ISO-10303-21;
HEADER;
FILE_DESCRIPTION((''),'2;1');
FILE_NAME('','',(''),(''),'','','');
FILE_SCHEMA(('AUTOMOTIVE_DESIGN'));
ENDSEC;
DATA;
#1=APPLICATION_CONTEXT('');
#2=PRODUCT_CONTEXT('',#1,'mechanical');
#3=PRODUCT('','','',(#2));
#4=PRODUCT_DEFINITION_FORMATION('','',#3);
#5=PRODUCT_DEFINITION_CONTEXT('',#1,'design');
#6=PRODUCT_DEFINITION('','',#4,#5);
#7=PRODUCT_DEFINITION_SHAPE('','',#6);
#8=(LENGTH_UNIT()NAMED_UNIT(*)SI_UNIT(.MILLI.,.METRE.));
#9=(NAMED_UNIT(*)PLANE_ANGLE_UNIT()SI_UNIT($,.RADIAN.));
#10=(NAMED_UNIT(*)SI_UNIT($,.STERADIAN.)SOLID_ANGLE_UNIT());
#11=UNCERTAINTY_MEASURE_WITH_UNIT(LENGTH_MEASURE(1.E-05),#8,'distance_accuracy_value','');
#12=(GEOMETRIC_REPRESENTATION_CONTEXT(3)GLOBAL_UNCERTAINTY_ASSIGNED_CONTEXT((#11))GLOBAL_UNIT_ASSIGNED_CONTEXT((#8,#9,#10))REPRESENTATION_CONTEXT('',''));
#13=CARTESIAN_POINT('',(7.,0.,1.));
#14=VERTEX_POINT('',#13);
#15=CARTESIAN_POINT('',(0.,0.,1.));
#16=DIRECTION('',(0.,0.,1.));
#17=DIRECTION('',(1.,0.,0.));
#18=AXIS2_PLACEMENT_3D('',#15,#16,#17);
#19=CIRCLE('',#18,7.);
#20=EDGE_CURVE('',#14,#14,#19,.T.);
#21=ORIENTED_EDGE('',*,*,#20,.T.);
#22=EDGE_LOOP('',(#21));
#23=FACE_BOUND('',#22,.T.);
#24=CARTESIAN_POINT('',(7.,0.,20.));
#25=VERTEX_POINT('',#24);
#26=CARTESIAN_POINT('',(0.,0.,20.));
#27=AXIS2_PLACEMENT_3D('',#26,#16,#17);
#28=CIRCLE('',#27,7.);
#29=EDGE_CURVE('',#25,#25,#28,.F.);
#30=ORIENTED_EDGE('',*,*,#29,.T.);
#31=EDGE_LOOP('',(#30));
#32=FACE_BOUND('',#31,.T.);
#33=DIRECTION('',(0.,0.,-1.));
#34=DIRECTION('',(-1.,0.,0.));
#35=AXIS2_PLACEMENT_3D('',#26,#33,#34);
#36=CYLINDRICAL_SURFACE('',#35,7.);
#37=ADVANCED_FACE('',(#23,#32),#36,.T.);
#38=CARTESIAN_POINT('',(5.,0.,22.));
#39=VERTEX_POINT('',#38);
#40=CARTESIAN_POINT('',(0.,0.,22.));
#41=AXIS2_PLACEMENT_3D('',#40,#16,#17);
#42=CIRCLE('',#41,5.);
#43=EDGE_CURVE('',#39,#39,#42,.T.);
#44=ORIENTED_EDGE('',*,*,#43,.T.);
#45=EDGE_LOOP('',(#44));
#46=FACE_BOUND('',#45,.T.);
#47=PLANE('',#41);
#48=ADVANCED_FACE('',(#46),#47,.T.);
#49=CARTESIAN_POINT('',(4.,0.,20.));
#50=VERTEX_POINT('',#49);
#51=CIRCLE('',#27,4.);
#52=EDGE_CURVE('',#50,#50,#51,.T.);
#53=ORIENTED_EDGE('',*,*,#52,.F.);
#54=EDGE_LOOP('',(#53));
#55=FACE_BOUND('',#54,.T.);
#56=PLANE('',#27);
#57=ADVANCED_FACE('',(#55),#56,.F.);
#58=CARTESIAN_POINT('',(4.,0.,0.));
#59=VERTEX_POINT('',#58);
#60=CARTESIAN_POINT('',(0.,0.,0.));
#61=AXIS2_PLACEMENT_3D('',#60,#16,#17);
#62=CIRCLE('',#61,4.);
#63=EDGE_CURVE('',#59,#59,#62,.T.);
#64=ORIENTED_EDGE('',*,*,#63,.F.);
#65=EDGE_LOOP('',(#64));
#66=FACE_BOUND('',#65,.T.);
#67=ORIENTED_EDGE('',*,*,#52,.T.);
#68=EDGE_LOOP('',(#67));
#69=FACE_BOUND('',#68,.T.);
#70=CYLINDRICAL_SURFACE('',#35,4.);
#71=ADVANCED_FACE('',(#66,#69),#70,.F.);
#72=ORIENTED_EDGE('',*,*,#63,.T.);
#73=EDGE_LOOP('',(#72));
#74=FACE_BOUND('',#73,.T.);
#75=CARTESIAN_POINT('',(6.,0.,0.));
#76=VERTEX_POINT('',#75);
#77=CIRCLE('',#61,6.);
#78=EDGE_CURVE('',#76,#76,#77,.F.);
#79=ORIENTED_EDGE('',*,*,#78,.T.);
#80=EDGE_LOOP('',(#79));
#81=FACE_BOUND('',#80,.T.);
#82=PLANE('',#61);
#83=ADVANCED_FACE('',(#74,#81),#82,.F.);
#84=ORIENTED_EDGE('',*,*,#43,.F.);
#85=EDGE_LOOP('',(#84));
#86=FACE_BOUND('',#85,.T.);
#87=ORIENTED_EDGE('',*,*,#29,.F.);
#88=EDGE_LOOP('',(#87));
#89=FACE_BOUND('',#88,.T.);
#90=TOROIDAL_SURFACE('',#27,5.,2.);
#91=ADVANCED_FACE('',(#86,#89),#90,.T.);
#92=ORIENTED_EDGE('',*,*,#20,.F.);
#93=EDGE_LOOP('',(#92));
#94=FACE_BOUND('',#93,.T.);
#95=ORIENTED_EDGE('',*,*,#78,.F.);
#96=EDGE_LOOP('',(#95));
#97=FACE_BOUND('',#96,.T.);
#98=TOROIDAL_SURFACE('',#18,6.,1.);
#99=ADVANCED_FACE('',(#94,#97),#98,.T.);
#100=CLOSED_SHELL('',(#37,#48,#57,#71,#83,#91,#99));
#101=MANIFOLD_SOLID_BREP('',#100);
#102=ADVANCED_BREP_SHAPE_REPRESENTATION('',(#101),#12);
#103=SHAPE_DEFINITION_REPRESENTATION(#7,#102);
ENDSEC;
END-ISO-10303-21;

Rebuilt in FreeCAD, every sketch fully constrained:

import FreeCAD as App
import Part
import Sketcher


def edges_at(feature, points):
    """Names of the edges that pass closest to the given points."""
    edges = feature.Shape.Edges
    near = lambda p: min(range(len(edges)), key=lambda i: edges[i].distToShape(Part.Vertex(*p))[0])
    return sorted({f"Edge{near(p) + 1}" for p in points})

doc = App.newDocument("Part")
body = doc.addObject("PartDesign::Body", "Body")

sketch1 = doc.addObject("Sketcher::SketchObject", "Sketch")
body.addObject(sketch1)
sketch1.AttachmentSupport = (doc.XY_Plane, [""])
sketch1.MapMode = "FlatFace"
sketch1.addGeometry([
    Part.Circle(App.Vector(0, 0, 0), App.Vector(0, 0, 1), 7),
    Part.Circle(App.Vector(0, 0, 0), App.Vector(0, 0, 1), 4),
], False)
sketch1.addConstraint([
    Sketcher.Constraint("Coincident", 0, 3, -1, 1),
    Sketcher.Constraint("Coincident", 1, 3, -1, 1),
    Sketcher.Constraint("Diameter", 0, 14.0),
    Sketcher.Constraint("Diameter", 1, 8.0),
])
pad1 = doc.addObject("PartDesign::Pad", "Pad")
body.addObject(pad1)
pad1.Profile = sketch1
pad1.Length = 20

sketch2 = doc.addObject("Sketcher::SketchObject", "Sketch001")
body.addObject(sketch2)
sketch2.AttachmentSupport = (doc.XY_Plane, [""])
sketch2.MapMode = "FlatFace"
sketch2.AttachmentOffset = App.Placement(App.Vector(0, 0, 20), App.Rotation())
sketch2.addGeometry(Part.Circle(App.Vector(0, 0, 0), App.Vector(0, 0, 1), 7), False)
sketch2.addConstraint([
    Sketcher.Constraint("Coincident", 0, 3, -1, 1),
    Sketcher.Constraint("Diameter", 0, 14.0),
])
pad2 = doc.addObject("PartDesign::Pad", "Pad001")
body.addObject(pad2)
pad2.Profile = sketch2
pad2.Length = 2
doc.recompute()

fillet = doc.addObject("PartDesign::Fillet", "Fillet")
body.addObject(fillet)
fillet.Base = (pad2, edges_at(pad2, [(-7, 0, 22)]))
fillet.Radius = 2
doc.recompute()

fillet2 = doc.addObject("PartDesign::Fillet", "Fillet001")
body.addObject(fillet2)
fillet2.Base = (fillet, edges_at(fillet, [(-7, 0, 0)]))
fillet2.Radius = 1

doc.recompute()
